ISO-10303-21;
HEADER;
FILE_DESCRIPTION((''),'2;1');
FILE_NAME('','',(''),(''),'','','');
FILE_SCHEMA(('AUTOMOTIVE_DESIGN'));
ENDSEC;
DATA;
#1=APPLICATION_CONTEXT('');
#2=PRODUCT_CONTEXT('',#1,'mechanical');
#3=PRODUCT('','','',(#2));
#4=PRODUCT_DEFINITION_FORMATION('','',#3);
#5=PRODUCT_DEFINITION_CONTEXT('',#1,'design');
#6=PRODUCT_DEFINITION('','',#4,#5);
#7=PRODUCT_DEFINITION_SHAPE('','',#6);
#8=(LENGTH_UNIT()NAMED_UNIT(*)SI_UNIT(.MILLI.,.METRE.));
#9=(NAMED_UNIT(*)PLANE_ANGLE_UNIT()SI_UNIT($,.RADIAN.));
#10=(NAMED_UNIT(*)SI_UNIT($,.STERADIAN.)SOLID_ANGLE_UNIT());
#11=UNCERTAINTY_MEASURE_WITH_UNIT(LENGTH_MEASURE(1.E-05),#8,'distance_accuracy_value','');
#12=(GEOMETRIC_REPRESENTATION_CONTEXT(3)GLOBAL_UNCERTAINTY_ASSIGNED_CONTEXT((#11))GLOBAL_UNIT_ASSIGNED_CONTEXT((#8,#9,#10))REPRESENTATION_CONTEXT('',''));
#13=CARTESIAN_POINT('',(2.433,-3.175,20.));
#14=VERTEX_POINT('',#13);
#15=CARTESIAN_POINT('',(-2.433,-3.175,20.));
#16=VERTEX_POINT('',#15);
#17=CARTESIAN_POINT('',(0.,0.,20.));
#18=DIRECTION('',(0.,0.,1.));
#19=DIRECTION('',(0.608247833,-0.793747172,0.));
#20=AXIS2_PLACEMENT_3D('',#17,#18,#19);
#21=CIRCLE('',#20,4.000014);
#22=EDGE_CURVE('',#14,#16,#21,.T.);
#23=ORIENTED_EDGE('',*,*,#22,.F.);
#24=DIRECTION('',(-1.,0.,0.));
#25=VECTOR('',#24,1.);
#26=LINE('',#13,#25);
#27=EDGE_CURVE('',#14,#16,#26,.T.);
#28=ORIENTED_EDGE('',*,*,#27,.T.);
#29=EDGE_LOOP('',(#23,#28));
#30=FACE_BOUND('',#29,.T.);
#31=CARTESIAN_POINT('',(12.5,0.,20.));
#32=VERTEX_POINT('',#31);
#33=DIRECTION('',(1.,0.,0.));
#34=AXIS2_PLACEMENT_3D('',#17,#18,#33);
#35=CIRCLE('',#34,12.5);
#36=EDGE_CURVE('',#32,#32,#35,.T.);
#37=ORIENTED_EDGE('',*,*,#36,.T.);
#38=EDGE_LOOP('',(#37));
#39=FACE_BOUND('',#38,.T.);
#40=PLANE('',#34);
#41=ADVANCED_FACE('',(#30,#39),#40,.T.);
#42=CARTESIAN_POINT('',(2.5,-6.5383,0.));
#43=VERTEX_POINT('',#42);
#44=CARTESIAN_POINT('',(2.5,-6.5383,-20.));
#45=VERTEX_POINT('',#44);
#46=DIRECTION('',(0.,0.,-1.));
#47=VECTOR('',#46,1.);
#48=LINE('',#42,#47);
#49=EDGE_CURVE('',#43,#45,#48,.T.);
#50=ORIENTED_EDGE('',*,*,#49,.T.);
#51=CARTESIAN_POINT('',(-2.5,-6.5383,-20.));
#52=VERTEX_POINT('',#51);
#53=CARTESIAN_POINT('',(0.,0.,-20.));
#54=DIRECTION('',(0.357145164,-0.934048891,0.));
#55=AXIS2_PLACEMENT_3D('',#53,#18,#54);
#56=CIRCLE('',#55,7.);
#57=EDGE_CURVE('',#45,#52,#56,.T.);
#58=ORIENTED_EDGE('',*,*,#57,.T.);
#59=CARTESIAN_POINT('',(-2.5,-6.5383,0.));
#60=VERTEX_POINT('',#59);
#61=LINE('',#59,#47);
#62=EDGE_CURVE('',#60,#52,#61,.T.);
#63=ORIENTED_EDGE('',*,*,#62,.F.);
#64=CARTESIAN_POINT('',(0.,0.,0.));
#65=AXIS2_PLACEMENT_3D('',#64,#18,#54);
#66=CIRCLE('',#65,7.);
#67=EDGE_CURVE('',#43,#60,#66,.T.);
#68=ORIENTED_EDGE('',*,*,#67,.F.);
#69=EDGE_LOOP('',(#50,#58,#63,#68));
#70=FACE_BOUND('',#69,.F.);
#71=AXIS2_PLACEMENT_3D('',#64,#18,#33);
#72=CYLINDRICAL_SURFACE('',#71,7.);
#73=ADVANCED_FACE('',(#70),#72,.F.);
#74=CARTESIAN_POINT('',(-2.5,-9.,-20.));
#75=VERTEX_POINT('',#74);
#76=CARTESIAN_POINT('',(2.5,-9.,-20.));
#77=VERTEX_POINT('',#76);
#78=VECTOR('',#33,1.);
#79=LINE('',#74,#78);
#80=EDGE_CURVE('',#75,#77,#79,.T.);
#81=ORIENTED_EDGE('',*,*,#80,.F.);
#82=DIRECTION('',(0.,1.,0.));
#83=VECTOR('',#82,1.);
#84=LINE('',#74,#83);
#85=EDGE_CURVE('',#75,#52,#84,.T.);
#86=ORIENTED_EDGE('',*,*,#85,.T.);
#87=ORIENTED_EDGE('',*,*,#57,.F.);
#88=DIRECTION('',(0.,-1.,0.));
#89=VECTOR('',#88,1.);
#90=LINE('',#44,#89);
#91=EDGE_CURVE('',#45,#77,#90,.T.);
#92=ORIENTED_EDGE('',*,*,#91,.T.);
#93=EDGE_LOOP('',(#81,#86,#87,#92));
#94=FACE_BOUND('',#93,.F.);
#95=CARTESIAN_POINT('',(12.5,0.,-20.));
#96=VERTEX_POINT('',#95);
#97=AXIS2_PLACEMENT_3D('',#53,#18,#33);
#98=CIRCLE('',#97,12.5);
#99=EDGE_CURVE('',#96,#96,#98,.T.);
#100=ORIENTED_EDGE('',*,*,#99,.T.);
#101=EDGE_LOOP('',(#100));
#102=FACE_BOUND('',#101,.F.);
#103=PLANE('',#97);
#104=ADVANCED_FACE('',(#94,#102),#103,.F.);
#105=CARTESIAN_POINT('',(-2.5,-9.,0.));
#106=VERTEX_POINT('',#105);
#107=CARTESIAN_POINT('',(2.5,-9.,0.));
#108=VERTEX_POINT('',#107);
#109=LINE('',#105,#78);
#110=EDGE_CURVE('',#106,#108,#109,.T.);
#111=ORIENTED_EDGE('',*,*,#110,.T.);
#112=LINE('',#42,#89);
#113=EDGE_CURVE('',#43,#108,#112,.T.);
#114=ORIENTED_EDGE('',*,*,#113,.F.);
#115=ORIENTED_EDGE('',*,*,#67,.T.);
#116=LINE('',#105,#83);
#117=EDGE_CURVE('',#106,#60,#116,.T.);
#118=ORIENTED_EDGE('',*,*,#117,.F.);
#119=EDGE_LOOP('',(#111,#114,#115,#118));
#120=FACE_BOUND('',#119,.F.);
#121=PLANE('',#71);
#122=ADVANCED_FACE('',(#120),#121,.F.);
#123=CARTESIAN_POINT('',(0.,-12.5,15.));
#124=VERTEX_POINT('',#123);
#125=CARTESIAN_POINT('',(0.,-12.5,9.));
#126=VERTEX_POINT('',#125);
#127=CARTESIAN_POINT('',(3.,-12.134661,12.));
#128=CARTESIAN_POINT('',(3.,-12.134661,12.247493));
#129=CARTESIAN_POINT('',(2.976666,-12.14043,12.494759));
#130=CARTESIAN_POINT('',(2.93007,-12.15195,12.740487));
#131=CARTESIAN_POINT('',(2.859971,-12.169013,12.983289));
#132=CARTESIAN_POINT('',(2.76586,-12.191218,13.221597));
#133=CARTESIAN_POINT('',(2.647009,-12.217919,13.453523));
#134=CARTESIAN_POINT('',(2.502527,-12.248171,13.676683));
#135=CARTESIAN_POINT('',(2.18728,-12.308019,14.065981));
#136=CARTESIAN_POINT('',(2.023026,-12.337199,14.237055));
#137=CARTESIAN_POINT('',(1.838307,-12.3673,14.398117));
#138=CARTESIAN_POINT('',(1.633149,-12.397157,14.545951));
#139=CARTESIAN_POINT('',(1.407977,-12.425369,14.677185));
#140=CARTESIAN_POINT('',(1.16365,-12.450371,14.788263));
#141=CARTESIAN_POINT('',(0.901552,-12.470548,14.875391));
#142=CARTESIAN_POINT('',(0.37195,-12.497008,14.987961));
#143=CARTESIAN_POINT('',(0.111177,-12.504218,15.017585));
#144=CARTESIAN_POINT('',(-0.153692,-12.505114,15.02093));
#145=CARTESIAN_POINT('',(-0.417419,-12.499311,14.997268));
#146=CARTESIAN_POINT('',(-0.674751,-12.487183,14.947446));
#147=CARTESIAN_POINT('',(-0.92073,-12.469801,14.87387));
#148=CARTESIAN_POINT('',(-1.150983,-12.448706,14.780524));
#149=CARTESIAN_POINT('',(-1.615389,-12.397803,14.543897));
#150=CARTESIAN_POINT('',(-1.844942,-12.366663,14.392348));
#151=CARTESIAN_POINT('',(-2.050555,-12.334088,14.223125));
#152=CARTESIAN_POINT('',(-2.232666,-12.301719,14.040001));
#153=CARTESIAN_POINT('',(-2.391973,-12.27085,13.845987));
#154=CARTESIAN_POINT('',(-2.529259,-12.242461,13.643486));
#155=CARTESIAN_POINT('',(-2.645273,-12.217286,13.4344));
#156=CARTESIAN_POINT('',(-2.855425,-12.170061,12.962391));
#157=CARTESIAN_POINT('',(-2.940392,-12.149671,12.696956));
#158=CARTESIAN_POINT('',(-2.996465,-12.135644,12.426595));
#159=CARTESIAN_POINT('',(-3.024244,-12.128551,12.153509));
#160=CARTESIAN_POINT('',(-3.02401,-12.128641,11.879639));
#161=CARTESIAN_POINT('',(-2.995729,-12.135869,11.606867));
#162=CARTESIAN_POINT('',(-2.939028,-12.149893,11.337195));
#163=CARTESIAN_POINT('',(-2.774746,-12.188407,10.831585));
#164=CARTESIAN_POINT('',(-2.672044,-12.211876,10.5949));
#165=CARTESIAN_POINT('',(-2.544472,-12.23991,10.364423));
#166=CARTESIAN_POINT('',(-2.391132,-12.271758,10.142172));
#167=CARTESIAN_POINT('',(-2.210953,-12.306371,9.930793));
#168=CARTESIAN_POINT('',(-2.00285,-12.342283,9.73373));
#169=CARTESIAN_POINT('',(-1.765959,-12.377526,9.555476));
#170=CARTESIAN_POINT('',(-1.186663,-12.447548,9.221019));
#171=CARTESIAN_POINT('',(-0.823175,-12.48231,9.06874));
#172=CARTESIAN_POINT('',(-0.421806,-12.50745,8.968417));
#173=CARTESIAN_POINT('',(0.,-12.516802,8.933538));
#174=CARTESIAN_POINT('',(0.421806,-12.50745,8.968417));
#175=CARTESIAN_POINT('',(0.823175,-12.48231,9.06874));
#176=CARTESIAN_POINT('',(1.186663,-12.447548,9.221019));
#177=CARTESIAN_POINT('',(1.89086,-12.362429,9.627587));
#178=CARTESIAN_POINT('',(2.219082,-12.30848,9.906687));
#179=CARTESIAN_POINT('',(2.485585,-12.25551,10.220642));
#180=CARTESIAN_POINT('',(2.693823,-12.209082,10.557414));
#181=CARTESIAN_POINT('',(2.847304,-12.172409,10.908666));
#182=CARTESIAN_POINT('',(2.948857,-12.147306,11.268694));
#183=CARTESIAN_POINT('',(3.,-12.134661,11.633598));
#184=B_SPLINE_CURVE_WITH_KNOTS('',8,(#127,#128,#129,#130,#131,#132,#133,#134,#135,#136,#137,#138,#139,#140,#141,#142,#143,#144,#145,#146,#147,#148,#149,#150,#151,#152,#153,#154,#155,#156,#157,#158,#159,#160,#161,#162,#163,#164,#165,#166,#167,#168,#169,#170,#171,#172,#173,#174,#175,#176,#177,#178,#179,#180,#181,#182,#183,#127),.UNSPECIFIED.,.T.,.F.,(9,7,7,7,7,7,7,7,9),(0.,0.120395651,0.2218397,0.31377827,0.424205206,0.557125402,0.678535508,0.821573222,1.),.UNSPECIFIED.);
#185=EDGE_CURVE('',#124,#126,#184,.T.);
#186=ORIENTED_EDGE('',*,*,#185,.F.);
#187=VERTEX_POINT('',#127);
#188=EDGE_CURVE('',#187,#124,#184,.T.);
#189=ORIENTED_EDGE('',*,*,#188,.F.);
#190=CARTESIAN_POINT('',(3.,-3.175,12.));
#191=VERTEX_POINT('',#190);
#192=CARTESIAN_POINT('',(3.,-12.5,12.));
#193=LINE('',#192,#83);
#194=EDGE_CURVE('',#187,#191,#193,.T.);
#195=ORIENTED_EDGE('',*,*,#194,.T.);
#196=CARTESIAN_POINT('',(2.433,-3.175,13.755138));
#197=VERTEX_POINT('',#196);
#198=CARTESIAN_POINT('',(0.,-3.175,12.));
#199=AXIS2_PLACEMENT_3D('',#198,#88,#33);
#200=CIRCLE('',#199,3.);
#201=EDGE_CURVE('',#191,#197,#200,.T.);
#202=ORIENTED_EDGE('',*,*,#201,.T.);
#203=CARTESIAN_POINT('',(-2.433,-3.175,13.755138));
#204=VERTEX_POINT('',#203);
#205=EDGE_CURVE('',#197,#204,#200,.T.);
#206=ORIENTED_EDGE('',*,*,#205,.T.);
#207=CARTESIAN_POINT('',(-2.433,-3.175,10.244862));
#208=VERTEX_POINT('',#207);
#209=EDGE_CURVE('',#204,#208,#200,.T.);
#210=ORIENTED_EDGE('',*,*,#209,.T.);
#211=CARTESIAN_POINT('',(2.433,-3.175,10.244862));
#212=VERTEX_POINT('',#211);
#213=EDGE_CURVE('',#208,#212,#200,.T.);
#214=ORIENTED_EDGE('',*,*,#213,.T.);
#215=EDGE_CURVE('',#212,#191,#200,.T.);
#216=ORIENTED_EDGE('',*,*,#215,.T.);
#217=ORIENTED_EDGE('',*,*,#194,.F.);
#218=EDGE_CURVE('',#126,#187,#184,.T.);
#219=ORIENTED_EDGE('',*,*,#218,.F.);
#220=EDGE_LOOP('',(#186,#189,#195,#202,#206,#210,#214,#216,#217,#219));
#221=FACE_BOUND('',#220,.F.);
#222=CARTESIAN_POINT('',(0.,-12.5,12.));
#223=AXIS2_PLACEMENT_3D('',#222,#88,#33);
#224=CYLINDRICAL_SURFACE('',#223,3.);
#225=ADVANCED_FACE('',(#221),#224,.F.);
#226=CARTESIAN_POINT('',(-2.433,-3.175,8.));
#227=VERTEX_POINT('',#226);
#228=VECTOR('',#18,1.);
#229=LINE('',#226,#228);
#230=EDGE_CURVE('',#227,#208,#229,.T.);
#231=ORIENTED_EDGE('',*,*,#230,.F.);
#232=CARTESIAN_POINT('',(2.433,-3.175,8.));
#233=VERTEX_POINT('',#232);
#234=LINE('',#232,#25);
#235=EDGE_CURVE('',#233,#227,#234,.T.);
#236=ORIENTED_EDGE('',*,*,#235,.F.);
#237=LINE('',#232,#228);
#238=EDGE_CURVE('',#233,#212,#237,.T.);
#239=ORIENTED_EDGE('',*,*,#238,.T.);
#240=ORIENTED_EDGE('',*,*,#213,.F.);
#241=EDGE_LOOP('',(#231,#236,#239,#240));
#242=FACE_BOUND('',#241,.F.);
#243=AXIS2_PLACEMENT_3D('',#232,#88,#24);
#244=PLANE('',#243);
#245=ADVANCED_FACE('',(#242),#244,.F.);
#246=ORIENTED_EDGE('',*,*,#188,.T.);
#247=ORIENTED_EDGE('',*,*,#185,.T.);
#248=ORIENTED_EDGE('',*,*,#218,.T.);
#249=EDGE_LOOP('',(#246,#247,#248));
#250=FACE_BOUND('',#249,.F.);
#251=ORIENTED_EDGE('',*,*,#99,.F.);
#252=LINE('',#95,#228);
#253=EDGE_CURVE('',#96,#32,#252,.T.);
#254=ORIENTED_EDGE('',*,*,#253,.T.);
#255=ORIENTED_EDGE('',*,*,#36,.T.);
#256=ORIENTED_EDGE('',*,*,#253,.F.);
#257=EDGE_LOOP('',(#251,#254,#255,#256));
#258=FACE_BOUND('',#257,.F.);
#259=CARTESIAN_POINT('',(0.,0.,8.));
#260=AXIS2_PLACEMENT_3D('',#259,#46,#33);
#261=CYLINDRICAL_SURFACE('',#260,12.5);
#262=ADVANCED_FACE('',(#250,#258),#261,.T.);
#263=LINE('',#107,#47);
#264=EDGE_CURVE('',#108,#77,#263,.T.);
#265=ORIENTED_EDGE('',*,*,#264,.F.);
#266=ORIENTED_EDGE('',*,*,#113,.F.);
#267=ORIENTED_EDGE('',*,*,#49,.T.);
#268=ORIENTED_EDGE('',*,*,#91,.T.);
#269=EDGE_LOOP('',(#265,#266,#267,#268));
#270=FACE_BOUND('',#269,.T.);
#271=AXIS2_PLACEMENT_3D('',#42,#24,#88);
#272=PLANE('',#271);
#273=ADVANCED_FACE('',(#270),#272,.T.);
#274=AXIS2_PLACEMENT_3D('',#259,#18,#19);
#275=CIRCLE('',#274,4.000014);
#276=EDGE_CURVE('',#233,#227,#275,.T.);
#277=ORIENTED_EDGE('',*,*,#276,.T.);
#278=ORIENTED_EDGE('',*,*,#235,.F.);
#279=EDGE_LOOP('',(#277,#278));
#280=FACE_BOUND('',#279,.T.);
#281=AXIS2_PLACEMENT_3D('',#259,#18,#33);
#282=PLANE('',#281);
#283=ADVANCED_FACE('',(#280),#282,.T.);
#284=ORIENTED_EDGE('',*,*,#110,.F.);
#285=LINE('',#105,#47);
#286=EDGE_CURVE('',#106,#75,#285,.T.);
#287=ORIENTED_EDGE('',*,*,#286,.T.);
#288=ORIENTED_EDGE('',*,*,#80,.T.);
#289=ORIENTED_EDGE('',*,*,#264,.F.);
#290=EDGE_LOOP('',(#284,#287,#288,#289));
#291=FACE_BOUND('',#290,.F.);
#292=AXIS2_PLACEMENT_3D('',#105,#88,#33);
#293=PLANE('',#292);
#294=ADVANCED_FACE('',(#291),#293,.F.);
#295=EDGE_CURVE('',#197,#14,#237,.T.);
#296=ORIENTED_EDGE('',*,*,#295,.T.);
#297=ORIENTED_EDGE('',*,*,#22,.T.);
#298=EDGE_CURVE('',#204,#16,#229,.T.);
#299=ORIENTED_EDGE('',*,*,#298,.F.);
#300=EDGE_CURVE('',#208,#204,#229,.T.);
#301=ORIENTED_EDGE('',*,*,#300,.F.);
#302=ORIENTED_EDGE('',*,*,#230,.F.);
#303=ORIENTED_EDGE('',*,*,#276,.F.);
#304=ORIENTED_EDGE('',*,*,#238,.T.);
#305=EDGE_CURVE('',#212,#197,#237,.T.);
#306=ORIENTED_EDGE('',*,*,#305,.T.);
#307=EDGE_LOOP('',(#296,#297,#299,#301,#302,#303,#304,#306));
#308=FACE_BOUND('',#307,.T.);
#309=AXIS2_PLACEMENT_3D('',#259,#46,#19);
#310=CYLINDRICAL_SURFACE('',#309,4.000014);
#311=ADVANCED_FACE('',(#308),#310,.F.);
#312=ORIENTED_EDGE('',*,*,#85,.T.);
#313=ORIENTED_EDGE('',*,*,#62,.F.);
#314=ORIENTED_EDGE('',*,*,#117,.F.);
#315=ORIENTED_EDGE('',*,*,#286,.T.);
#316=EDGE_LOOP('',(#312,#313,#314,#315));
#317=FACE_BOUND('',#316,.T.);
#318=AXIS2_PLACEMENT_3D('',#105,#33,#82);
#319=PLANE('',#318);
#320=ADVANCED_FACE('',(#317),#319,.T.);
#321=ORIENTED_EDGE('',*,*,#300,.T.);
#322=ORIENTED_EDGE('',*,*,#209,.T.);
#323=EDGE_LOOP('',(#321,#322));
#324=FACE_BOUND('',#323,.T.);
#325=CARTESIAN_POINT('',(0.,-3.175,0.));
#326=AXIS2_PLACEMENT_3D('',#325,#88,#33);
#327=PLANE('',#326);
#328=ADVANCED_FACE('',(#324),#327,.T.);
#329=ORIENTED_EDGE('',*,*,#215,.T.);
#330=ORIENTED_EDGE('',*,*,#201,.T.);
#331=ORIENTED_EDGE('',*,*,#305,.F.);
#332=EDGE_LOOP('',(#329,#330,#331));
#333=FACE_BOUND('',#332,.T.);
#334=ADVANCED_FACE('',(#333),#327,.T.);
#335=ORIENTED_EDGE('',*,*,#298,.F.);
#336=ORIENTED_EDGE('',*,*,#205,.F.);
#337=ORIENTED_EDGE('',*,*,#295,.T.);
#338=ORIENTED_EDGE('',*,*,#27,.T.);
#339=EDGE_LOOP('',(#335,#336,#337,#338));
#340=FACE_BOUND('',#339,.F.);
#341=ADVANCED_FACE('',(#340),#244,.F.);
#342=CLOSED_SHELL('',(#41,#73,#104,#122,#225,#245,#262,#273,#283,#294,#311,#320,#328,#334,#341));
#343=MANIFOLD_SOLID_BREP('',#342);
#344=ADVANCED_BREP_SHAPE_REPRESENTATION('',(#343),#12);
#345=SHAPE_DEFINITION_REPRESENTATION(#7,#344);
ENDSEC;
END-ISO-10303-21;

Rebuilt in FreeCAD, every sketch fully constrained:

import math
import FreeCAD as App
import Part
import Sketcher

V = App.Vector

doc = App.newDocument("Part")
params = doc.addObject("Spreadsheet::Sheet", "Params")
for row, (alias, value) in enumerate([
    ("sketch1_diameter", "25 mm"),
    ("sketch1_radius", "7 mm"),
    ("sketch1_width", "5 mm"),
    ("pad1_length", "20 mm"),
    ("sketch2_diameter", "25 mm"),
    ("pad2_length", "8 mm"),
    ("sketch3_diameter", "25 mm"),
    ("sketch3_radius", "4 mm"),
    ("pad3_length", "12 mm"),
    ("sketch4_diameter", "6 mm"),
    ("pocket1_length", "9.325 mm"),
], start=1):
    params.set(f"A{row}", alias)
    params.set(f"B{row}", "=" + value)
    params.setAlias(f"B{row}", alias)

body = doc.addObject("PartDesign::Body", "Body")

# Sketch on XY plane
sketch1 = body.newObject("Sketcher::SketchObject", "Sketch")
sketch1.AttachmentSupport = (doc.getObject("XY_Plane"), [""])
sketch1.MapMode = "FlatFace"
sketch1.addGeometry(Part.Circle(V(0, 0, 0), V(0, 0, 1), 12.5), False)
sketch1.addGeometry(Part.ArcOfCircle(Part.Circle(V(0, 0, 0), V(0, 0, 1), 7), math.radians(-69.075026), math.radians(249.075026)), False)
sketch1.addGeometry(Part.LineSegment(V(2.5, -6.5383, 0), V(2.5, -9, 0)), False)
sketch1.addGeometry(Part.LineSegment(V(2.5, -9, 0), V(-2.5, -9, 0)), False)
sketch1.addGeometry(Part.LineSegment(V(-2.5, -9, 0), V(-2.5, -6.5383, 0)), False)
sketch1.addConstraint(Sketcher.Constraint("Coincident", 1, 1, 2, 1))
sketch1.addConstraint(Sketcher.Constraint("Coincident", 2, 2, 3, 1))
sketch1.addConstraint(Sketcher.Constraint("Coincident", 3, 2, 4, 1))
sketch1.addConstraint(Sketcher.Constraint("Coincident", 4, 2, 1, 2))
sketch1.addConstraint(Sketcher.Constraint("Vertical", 2))
sketch1.addConstraint(Sketcher.Constraint("Horizontal", 3))
sketch1.addConstraint(Sketcher.Constraint("Vertical", 4))
sketch1.addConstraint(Sketcher.Constraint("Coincident", 0, 3, -1, 1))
sketch1.addConstraint(Sketcher.Constraint("Coincident", 1, 3, -1, 1))
sketch1.addConstraint(Sketcher.Constraint("Horizontal", 1, 1, 4, 2))
sketch1.addConstraint(Sketcher.Constraint("Diameter", 0, 25.0))
sketch1.addConstraint(Sketcher.Constraint("Radius", 1, 7.0))
sketch1.addConstraint(Sketcher.Constraint("DistanceX", 3, 2, 3, 1, 5.0))
sketch1.addConstraint(Sketcher.Constraint("DistanceY", 2, 2, -1, 1, 9.0))
sketch1.setExpression("Constraints[10]", "Params.sketch1_diameter")
sketch1.setExpression("Constraints[11]", "Params.sketch1_radius")
sketch1.setExpression("Constraints[12]", "Params.sketch1_width")
pad1 = body.newObject("PartDesign::Pad", "Pad")
pad1.Profile = sketch1
pad1.setExpression("Length", "Params.pad1_length")
pad1.Reversed = True

# Sketch on XY plane
sketch2 = body.newObject("Sketcher::SketchObject", "Sketch001")
sketch2.AttachmentSupport = (doc.getObject("XY_Plane"), [""])
sketch2.MapMode = "FlatFace"
sketch2.addGeometry(Part.Circle(V(0, 0, 0), V(0, 0, 1), 12.5), False)
sketch2.addConstraint(Sketcher.Constraint("Coincident", 0, 3, -1, 1))
sketch2.addConstraint(Sketcher.Constraint("Diameter", 0, 25.0))
sketch2.setExpression("Constraints[1]", "Params.sketch2_diameter")
pad2 = body.newObject("PartDesign::Pad", "Pad001")
pad2.Profile = sketch2
pad2.setExpression("Length", "Params.pad2_length")

# Sketch on XY plane
sketch3 = body.newObject("Sketcher::SketchObject", "Sketch002")
sketch3.AttachmentSupport = (doc.getObject("XY_Plane"), [""])
sketch3.MapMode = "FlatFace"
sketch3.AttachmentOffset = App.Placement(V(0, 0, 8), App.Rotation())
sketch3.addGeometry(Part.Circle(V(0, 0, 0), V(0, 0, 1), 12.5), False)
sketch3.addGeometry(Part.ArcOfCircle(Part.Circle(V(0, 0, 0), V(0, 0, 1), 4.000014), math.radians(-52.537083), math.radians(232.537083)), False)
sketch3.addGeometry(Part.LineSegment(V(2.433, -3.175, 0), V(-2.433, -3.175, 0)), False)
sketch3.addConstraint(Sketcher.Constraint("Coincident", 1, 1, 2, 1))
sketch3.addConstraint(Sketcher.Constraint("Coincident", 2, 2, 1, 2))
sketch3.addConstraint(Sketcher.Constraint("Horizontal", 2))
sketch3.addConstraint(Sketcher.Constraint("Coincident", 0, 3, -1, 1))
sketch3.addConstraint(Sketcher.Constraint("Coincident", 1, 3, -1, 1))
sketch3.addConstraint(Sketcher.Constraint("Diameter", 0, 25.0))
sketch3.addConstraint(Sketcher.Constraint("Radius", 1, 4.0))
sketch3.addConstraint(Sketcher.Constraint("DistanceX", 2, 2, 2, 1, 4.866))
sketch3.setExpression("Constraints[5]", "Params.sketch3_diameter")
sketch3.setExpression("Constraints[6]", "Params.sketch3_radius")
pad3 = body.newObject("PartDesign::Pad", "Pad002")
pad3.Profile = sketch3
pad3.setExpression("Length", "Params.pad3_length")

# Sketch on XZ plane
sketch4 = body.newObject("Sketcher::SketchObject", "Sketch003")
sketch4.AttachmentSupport = (doc.getObject("XZ_Plane"), [""])
sketch4.MapMode = "FlatFace"
sketch4.AttachmentOffset = App.Placement(V(0, 0, 12.5), App.Rotation())
sketch4.addGeometry(Part.Circle(V(0, 12, 0), V(0, 0, 1), 3), False)
sketch4.addConstraint(Sketcher.Constraint("PointOnObject", 0, 3, -2))
sketch4.addConstraint(Sketcher.Constraint("Diameter", 0, 6.0))
sketch4.addConstraint(Sketcher.Constraint("DistanceY", -1, 1, 0, 3, 12.0))
sketch4.setExpression("Constraints[1]", "Params.sketch4_diameter")
pocket1 = body.newObject("PartDesign::Pocket", "Pocket")
pocket1.Profile = sketch4
pocket1.setExpression("Length", "Params.pocket1_length")

doc.recompute()
